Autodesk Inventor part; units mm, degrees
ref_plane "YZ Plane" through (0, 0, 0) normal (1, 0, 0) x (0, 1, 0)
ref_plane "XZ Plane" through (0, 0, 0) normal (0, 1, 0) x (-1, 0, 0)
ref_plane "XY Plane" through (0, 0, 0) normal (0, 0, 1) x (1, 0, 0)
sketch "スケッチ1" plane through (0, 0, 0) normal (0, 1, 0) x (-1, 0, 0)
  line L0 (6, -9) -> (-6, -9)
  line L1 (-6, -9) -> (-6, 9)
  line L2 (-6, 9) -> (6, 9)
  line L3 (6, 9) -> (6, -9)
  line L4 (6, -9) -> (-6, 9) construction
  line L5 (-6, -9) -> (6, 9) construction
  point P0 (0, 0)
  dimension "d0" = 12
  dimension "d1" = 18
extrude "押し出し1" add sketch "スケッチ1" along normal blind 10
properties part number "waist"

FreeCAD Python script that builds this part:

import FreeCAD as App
import Part
import Sketcher
Q = App.Units.Quantity


def add_polygon(sketch, points):
    """Adds a closed chain of lines whose ends are joined by coincident constraints."""
    first, n = sketch.GeometryCount, len(points)
    for a, b in zip(points, points[1:] + points[:1]):
        sketch.addGeometry(Part.LineSegment(App.Vector(*a, 0), App.Vector(*b, 0)), False)
    for i in range(n):
        sketch.addConstraint(Sketcher.Constraint("Coincident", first + i, 2, first + (i + 1) % n, 1))

doc = App.newDocument("Part")
body = doc.addObject("PartDesign::Body", "Body")

sketch1 = body.newObject("Sketcher::SketchObject", "Sketch")
sketch1.AttachmentSupport = (doc.getObject("XZ_Plane"), [""])
sketch1.MapMode = "FlatFace"
add_polygon(sketch1, [(6, -9), (-6, -9), (-6, 9), (6, 9)])
sketch1.addConstraint([
    Sketcher.Constraint("Horizontal", 0),
    Sketcher.Constraint("Vertical", 1),
    Sketcher.Constraint("Horizontal", 2),
    Sketcher.Constraint("Vertical", 3),
    Sketcher.Constraint("Symmetric", 0, 2, 2, 2, -1, 1),
    Sketcher.Constraint("DistanceX", 0, 2, 0, 1, Q("12 mm")),
    Sketcher.Constraint("DistanceY", 1, 1, 1, 2, Q("18 mm")),
])
pad1 = body.newObject("PartDesign::Pad", "Pad")
pad1.Profile = sketch1
pad1.Length = 10
pad1.Reversed = True

doc.recompute()
